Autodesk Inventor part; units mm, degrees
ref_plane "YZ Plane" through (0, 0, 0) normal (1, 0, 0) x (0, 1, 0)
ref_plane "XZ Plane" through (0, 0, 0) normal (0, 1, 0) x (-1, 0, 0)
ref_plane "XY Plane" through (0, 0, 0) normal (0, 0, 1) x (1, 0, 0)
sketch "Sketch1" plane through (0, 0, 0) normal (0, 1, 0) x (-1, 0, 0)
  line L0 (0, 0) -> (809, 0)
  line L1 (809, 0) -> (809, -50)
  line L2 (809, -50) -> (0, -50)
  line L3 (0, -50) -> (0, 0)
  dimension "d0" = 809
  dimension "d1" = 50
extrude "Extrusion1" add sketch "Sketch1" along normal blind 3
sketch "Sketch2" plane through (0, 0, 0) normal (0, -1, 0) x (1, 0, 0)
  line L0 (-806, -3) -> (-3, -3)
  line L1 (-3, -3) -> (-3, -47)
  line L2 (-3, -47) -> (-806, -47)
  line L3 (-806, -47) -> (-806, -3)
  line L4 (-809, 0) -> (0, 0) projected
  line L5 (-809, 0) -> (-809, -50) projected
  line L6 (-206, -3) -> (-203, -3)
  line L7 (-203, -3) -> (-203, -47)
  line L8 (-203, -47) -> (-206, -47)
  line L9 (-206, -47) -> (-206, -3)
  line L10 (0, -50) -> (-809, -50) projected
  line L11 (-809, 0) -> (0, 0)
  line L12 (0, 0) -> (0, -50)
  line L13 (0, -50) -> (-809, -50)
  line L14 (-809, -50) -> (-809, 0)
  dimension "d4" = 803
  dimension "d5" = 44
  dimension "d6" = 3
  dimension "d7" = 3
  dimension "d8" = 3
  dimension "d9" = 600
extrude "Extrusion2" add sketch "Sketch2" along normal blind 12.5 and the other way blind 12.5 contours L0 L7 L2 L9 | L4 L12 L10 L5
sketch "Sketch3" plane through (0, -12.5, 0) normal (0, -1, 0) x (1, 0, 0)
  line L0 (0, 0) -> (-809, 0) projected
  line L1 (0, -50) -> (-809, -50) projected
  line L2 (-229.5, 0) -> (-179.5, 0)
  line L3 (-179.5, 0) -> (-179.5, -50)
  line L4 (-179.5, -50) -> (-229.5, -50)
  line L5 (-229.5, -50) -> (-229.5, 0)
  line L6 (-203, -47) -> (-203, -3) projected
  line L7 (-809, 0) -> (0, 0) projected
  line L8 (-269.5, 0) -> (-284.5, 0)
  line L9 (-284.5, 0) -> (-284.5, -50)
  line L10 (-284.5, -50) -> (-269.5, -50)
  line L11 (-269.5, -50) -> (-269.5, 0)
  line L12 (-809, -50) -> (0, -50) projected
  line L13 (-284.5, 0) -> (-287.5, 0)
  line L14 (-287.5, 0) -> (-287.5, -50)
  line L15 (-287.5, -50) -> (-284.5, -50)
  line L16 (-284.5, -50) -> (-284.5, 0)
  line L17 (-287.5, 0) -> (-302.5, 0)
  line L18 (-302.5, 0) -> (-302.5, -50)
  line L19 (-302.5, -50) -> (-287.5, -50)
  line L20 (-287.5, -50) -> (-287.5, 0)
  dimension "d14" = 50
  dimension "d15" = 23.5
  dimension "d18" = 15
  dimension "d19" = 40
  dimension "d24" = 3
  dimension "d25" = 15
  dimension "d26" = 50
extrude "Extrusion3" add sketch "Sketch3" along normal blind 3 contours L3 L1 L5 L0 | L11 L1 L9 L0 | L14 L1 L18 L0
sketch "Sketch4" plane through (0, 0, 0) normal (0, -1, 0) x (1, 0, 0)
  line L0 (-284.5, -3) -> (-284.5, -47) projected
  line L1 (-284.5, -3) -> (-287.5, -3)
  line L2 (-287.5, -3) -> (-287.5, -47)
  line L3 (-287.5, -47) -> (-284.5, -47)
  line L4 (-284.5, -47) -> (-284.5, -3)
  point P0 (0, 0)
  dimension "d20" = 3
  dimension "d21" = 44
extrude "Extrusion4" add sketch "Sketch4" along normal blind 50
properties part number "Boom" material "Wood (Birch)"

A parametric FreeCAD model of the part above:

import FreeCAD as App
import Part
import Sketcher

V = App.Vector

doc = App.newDocument("Part")
params = doc.addObject("Spreadsheet::Sheet", "Params")
for row, (alias, value) in enumerate([
    ("sketch1_width", "809 mm"),
    ("sketch1_height", "50 mm"),
    ("pad1_length", "3 mm"),
    ("sketch2_width", "600 mm"),
    ("sketch2_height", "44 mm"),
    ("sketch2_width2", "809 mm"),
    ("pad2_length", "12.5 mm"),
    ("pad2_length2", "12.5 mm"),
    ("sketch3_width", "50 mm"),
    ("sketch3_width2", "15 mm"),
    ("pad3_length", "3 mm"),
    ("sketch4_width", "3 mm"),
    ("sketch4_height", "44 mm"),
    ("pad4_length", "50 mm"),
], start=1):
    params.set(f"A{row}", alias)
    params.set(f"B{row}", "=" + value)
    params.setAlias(f"B{row}", alias)

body = doc.addObject("PartDesign::Body", "Body")

# Sketch on XZ plane
sketch1 = body.newObject("Sketcher::SketchObject", "Sketch")
sketch1.AttachmentSupport = (doc.getObject("XZ_Plane"), [""])
sketch1.MapMode = "FlatFace"
sketch1.addGeometry(Part.LineSegment(V(-809, 0, 0), V(0, 0, 0)), False)
sketch1.addGeometry(Part.LineSegment(V(0, 0, 0), V(0, -50, 0)), False)
sketch1.addGeometry(Part.LineSegment(V(0, -50, 0), V(-809, -50, 0)), False)
sketch1.addGeometry(Part.LineSegment(V(-809, -50, 0), V(-809, 0, 0)), False)
sketch1.addConstraint(Sketcher.Constraint("Coincident", 0, 2, 1, 1))
sketch1.addConstraint(Sketcher.Constraint("Coincident", 1, 2, 2, 1))
sketch1.addConstraint(Sketcher.Constraint("Coincident", 2, 2, 3, 1))
sketch1.addConstraint(Sketcher.Constraint("Coincident", 3, 2, 0, 1))
sketch1.addConstraint(Sketcher.Constraint("Horizontal", 0))
sketch1.addConstraint(Sketcher.Constraint("Vertical", 1))
sketch1.addConstraint(Sketcher.Constraint("Horizontal", 2))
sketch1.addConstraint(Sketcher.Constraint("Vertical", 3))
sketch1.addConstraint(Sketcher.Constraint("Coincident", 0, 2, -1, 1))
sketch1.addConstraint(Sketcher.Constraint("DistanceX", 0, 1, 0, 2, 809.0))
sketch1.addConstraint(Sketcher.Constraint("DistanceY", 1, 2, 1, 1, 50.0))
sketch1.setExpression("Constraints[9]", "Params.sketch1_width")
sketch1.setExpression("Constraints[10]", "Params.sketch1_height")
pad1 = body.newObject("PartDesign::Pad", "Pad")
pad1.Profile = sketch1
pad1.setExpression("Length", "Params.pad1_length")
pad1.Reversed = True

# Sketch on XZ plane
sketch2 = body.newObject("Sketcher::SketchObject", "Sketch001")
sketch2.AttachmentSupport = (doc.getObject("XZ_Plane"), [""])
sketch2.MapMode = "FlatFace"
sketch2.addGeometry(Part.LineSegment(V(0, 0, 0), V(-809, 0, 0)), False)
sketch2.addGeometry(Part.LineSegment(V(-809, 0, 0), V(-809, -50, 0)), False)
sketch2.addGeometry(Part.LineSegment(V(-809, -50, 0), V(0, -50, 0)), False)
sketch2.addGeometry(Part.LineSegment(V(0, -50, 0), V(0, 0, 0)), False)
sketch2.addGeometry(Part.LineSegment(V(-203, -47, 0), V(-203, -3, 0)), False)
sketch2.addGeometry(Part.LineSegment(V(-203, -3, 0), V(-3, -3, 0)), False)
sketch2.addGeometry(Part.LineSegment(V(-3, -3, 0), V(-3, -47, 0)), False)
sketch2.addGeometry(Part.LineSegment(V(-3, -47, 0), V(-203, -47, 0)), False)
sketch2.addGeometry(Part.LineSegment(V(-206, -3, 0), V(-206, -47, 0)), False)
sketch2.addGeometry(Part.LineSegment(V(-206, -47, 0), V(-806, -47, 0)), False)
sketch2.addGeometry(Part.LineSegment(V(-806, -47, 0), V(-806, -3, 0)), False)
sketch2.addGeometry(Part.LineSegment(V(-806, -3, 0), V(-206, -3, 0)), False)
sketch2.addConstraint(Sketcher.Constraint("Coincident", 0, 2, 1, 1))
sketch2.addConstraint(Sketcher.Constraint("Coincident", 1, 2, 2, 1))
sketch2.addConstraint(Sketcher.Constraint("Coincident", 2, 2, 3, 1))
sketch2.addConstraint(Sketcher.Constraint("Coincident", 3, 2, 0, 1))
sketch2.addConstraint(Sketcher.Constraint("Coincident", 4, 2, 5, 1))
sketch2.addConstraint(Sketcher.Constraint("Coincident", 5, 2, 6, 1))
sketch2.addConstraint(Sketcher.Constraint("Coincident", 6, 2, 7, 1))
sketch2.addConstraint(Sketcher.Constraint("Coincident", 7, 2, 4, 1))
sketch2.addConstraint(Sketcher.Constraint("Coincident", 8, 2, 9, 1))
sketch2.addConstraint(Sketcher.Constraint("Coincident", 9, 2, 10, 1))
sketch2.addConstraint(Sketcher.Constraint("Coincident", 10, 2, 11, 1))
sketch2.addConstraint(Sketcher.Constraint("Coincident", 11, 2, 8, 1))
sketch2.addConstraint(Sketcher.Constraint("Horizontal", 0))
sketch2.addConstraint(Sketcher.Constraint("Vertical", 1))
sketch2.addConstraint(Sketcher.Constraint("Horizontal", 2))
sketch2.addConstraint(Sketcher.Constraint("Vertical", 3))
sketch2.addConstraint(Sketcher.Constraint("Vertical", 4))
sketch2.addConstraint(Sketcher.Constraint("Horizontal", 5))
sketch2.addConstraint(Sketcher.Constraint("Vertical", 6))
sketch2.addConstraint(Sketcher.Constraint("Horizontal", 7))
sketch2.addConstraint(Sketcher.Constraint("Vertical", 8))
sketch2.addConstraint(Sketcher.Constraint("Horizontal", 9))
sketch2.addConstraint(Sketcher.Constraint("Vertical", 10))
sketch2.addConstraint(Sketcher.Constraint("Horizontal", 11))
sketch2.addConstraint(Sketcher.Constraint("Coincident", 3, 2, -1, 1))
sketch2.addConstraint(Sketcher.Constraint("Horizontal", 7, 2, 8, 2))
sketch2.addConstraint(Sketcher.Constraint("Horizontal", 5, 2, 10, 2))
sketch2.addConstraint(Sketcher.Constraint("DistanceX", 9, 2, 9, 1, 600.0))
sketch2.addConstraint(Sketcher.Constraint("DistanceY", 4, 1, 4, 2, 44.0))
sketch2.addConstraint(Sketcher.Constraint("DistanceY", 4, 2, -1, 1, 3.0))
sketch2.addConstraint(Sketcher.Constraint("DistanceX", 5, 2, -1, 1, 3.0))
sketch2.addConstraint(Sketcher.Constraint("DistanceY", 2, 2, 6, 2, 3.0))
sketch2.addConstraint(Sketcher.Constraint("DistanceX", 8, 2, 7, 2, 3.0))
sketch2.addConstraint(Sketcher.Constraint("DistanceX", 1, 2, 9, 2, 3.0))
sketch2.addConstraint(Sketcher.Constraint("DistanceX", 0, 2, 0, 1, 809.0))
sketch2.setExpression("Constraints[27]", "Params.sketch2_width")
sketch2.setExpression("Constraints[28]", "Params.sketch2_height")
sketch2.setExpression("Constraints[34]", "Params.sketch2_width2")
pad2 = body.newObject("PartDesign::Pad", "Pad001")
pad2.Profile = sketch2
pad2.Type = "TwoLengths"
pad2.setExpression("Length", "Params.pad2_length")
pad2.setExpression("Length2", "Params.pad2_length2")

# Sketch on XZ plane
sketch3 = body.newObject("Sketcher::SketchObject", "Sketch002")
sketch3.AttachmentSupport = (doc.getObject("XZ_Plane"), [""])
sketch3.MapMode = "FlatFace"
sketch3.AttachmentOffset = App.Placement(V(0, 0, 12.5), App.Rotation())
sketch3.addGeometry(Part.LineSegment(V(-180, -50, 0), V(-180, 0, 0)), False)
sketch3.addGeometry(Part.LineSegment(V(-180, 0, 0), V(-230, 0, 0)), False)
sketch3.addGeometry(Part.LineSegment(V(-230, 0, 0), V(-230, -50, 0)), False)
sketch3.addGeometry(Part.LineSegment(V(-230, -50, 0), V(-180, -50, 0)), False)
sketch3.addGeometry(Part.LineSegment(V(-270, -50, 0), V(-270, 0, 0)), False)
sketch3.addGeometry(Part.LineSegment(V(-270, 0, 0), V(-284, 0, 0)), False)
sketch3.addGeometry(Part.LineSegment(V(-284, 0, 0), V(-284, -50, 0)), False)
sketch3.addGeometry(Part.LineSegment(V(-284, -50, 0), V(-270, -50, 0)), False)
sketch3.addGeometry(Part.LineSegment(V(-288, -50, 0), V(-288, 0, 0)), False)
sketch3.addGeometry(Part.LineSegment(V(-288, 0, 0), V(-302, 0, 0)), False)
sketch3.addGeometry(Part.LineSegment(V(-302, 0, 0), V(-302, -50, 0)), False)
sketch3.addGeometry(Part.LineSegment(V(-302, -50, 0), V(-288, -50, 0)), False)
sketch3.addConstraint(Sketcher.Constraint("Coincident", 0, 2, 1, 1))
sketch3.addConstraint(Sketcher.Constraint("Coincident", 1, 2, 2, 1))
sketch3.addConstraint(Sketcher.Constraint("Coincident", 2, 2, 3, 1))
sketch3.addConstraint(Sketcher.Constraint("Coincident", 3, 2, 0, 1))
sketch3.addConstraint(Sketcher.Constraint("Coincident", 4, 2, 5, 1))
sketch3.addConstraint(Sketcher.Constraint("Coincident", 5, 2, 6, 1))
sketch3.addConstraint(Sketcher.Constraint("Coincident", 6, 2, 7, 1))
sketch3.addConstraint(Sketcher.Constraint("Coincident", 7, 2, 4, 1))
sketch3.addConstraint(Sketcher.Constraint("Coincident", 8, 2, 9, 1))
sketch3.addConstraint(Sketcher.Constraint("Coincident", 9, 2, 10, 1))
sketch3.addConstraint(Sketcher.Constraint("Coincident", 10, 2, 11, 1))
sketch3.addConstraint(Sketcher.Constraint("Coincident", 11, 2, 8, 1))
sketch3.addConstraint(Sketcher.Constraint("Vertical", 0))
sketch3.addConstraint(Sketcher.Constraint("Horizontal", 1))
sketch3.addConstraint(Sketcher.Constraint("Vertical", 2))
sketch3.addConstraint(Sketcher.Constraint("Horizontal", 3))
sketch3.addConstraint(Sketcher.Constraint("Vertical", 4))
sketch3.addConstraint(Sketcher.Constraint("Horizontal", 5))
sketch3.addConstraint(Sketcher.Constraint("Vertical", 6))
sketch3.addConstraint(Sketcher.Constraint("Horizontal", 7))
sketch3.addConstraint(Sketcher.Constraint("Vertical", 8))
sketch3.addConstraint(Sketcher.Constraint("Horizontal", 9))
sketch3.addConstraint(Sketcher.Constraint("Vertical", 10))
sketch3.addConstraint(Sketcher.Constraint("Horizontal", 11))
sketch3.addConstraint(Sketcher.Constraint("PointOnObject", 0, 2, -1))
sketch3.addConstraint(Sketcher.Constraint("PointOnObject", 4, 2, -1))
sketch3.addConstraint(Sketcher.Constraint("PointOnObject", 8, 2, -1))
sketch3.addConstraint(Sketcher.Constraint("Horizontal", 3, 2, 6, 2))
sketch3.addConstraint(Sketcher.Constraint("Horizontal", 7, 2, 10, 2))
sketch3.addConstraint(Sketcher.Constraint("Equal", 7, 9))
sketch3.addConstraint(Sketcher.Constraint("Equal", 3, 0))
sketch3.addConstraint(Sketcher.Constraint("DistanceX", 1, 2, 1, 1, 50.0))
sketch3.addConstraint(Sketcher.Constraint("DistanceX", 5, 2, 5, 1, 15.0))
sketch3.addConstraint(Sketcher.Constraint("DistanceX", 4, 2, 1, 2, 40.0))
sketch3.addConstraint(Sketcher.Constraint("DistanceX", 8, 2, 5, 2, 3.0))
sketch3.addConstraint(Sketcher.Constraint("DistanceX", 0, 2, -1, 1, 179.5))
sketch3.setExpression("Constraints[31]", "Params.sketch3_width")
sketch3.setExpression("Constraints[32]", "Params.sketch3_width2")
pad3 = body.newObject("PartDesign::Pad", "Pad002")
pad3.Profile = sketch3
pad3.setExpression("Length", "Params.pad3_length")

# Sketch on XZ plane
sketch4 = body.newObject("Sketcher::SketchObject", "Sketch003")
sketch4.AttachmentSupport = (doc.getObject("XZ_Plane"), [""])
sketch4.MapMode = "FlatFace"
sketch4.addGeometry(Part.LineSegment(V(-284.5, -47, 0), V(-284.5, -3, 0)), False)
sketch4.addGeometry(Part.LineSegment(V(-284.5, -3, 0), V(-287.5, -3, 0)), False)
sketch4.addGeometry(Part.LineSegment(V(-287.5, -3, 0), V(-287.5, -47, 0)), False)
sketch4.addGeometry(Part.LineSegment(V(-287.5, -47, 0), V(-284.5, -47, 0)), False)
sketch4.addConstraint(Sketcher.Constraint("Coincident", 0, 2, 1, 1))
sketch4.addConstraint(Sketcher.Constraint("Coincident", 1, 2, 2, 1))
sketch4.addConstraint(Sketcher.Constraint("Coincident", 2, 2, 3, 1))
sketch4.addConstraint(Sketcher.Constraint("Coincident", 3, 2, 0, 1))
sketch4.addConstraint(Sketcher.Constraint("Vertical", 0))
sketch4.addConstraint(Sketcher.Constraint("Horizontal", 1))
sketch4.addConstraint(Sketcher.Constraint("Vertical", 2))
sketch4.addConstraint(Sketcher.Constraint("Horizontal", 3))
sketch4.addConstraint(Sketcher.Constraint("DistanceX", 1, 2, 1, 1, 3.0))
sketch4.addConstraint(Sketcher.Constraint("DistanceY", 0, 1, 0, 2, 44.0))
sketch4.addConstraint(Sketcher.Constraint("DistanceY", 0, 2, -1, 1, 3.0))
sketch4.addConstraint(Sketcher.Constraint("DistanceX", 0, 2, -1, 1, 284.5))
sketch4.setExpression("Constraints[8]", "Params.sketch4_width")
sketch4.setExpression("Constraints[9]", "Params.sketch4_height")
pad4 = body.newObject("PartDesign::Pad", "Pad003")
pad4.Profile = sketch4
pad4.setExpression("Length", "Params.pad4_length")

doc.recompute()
